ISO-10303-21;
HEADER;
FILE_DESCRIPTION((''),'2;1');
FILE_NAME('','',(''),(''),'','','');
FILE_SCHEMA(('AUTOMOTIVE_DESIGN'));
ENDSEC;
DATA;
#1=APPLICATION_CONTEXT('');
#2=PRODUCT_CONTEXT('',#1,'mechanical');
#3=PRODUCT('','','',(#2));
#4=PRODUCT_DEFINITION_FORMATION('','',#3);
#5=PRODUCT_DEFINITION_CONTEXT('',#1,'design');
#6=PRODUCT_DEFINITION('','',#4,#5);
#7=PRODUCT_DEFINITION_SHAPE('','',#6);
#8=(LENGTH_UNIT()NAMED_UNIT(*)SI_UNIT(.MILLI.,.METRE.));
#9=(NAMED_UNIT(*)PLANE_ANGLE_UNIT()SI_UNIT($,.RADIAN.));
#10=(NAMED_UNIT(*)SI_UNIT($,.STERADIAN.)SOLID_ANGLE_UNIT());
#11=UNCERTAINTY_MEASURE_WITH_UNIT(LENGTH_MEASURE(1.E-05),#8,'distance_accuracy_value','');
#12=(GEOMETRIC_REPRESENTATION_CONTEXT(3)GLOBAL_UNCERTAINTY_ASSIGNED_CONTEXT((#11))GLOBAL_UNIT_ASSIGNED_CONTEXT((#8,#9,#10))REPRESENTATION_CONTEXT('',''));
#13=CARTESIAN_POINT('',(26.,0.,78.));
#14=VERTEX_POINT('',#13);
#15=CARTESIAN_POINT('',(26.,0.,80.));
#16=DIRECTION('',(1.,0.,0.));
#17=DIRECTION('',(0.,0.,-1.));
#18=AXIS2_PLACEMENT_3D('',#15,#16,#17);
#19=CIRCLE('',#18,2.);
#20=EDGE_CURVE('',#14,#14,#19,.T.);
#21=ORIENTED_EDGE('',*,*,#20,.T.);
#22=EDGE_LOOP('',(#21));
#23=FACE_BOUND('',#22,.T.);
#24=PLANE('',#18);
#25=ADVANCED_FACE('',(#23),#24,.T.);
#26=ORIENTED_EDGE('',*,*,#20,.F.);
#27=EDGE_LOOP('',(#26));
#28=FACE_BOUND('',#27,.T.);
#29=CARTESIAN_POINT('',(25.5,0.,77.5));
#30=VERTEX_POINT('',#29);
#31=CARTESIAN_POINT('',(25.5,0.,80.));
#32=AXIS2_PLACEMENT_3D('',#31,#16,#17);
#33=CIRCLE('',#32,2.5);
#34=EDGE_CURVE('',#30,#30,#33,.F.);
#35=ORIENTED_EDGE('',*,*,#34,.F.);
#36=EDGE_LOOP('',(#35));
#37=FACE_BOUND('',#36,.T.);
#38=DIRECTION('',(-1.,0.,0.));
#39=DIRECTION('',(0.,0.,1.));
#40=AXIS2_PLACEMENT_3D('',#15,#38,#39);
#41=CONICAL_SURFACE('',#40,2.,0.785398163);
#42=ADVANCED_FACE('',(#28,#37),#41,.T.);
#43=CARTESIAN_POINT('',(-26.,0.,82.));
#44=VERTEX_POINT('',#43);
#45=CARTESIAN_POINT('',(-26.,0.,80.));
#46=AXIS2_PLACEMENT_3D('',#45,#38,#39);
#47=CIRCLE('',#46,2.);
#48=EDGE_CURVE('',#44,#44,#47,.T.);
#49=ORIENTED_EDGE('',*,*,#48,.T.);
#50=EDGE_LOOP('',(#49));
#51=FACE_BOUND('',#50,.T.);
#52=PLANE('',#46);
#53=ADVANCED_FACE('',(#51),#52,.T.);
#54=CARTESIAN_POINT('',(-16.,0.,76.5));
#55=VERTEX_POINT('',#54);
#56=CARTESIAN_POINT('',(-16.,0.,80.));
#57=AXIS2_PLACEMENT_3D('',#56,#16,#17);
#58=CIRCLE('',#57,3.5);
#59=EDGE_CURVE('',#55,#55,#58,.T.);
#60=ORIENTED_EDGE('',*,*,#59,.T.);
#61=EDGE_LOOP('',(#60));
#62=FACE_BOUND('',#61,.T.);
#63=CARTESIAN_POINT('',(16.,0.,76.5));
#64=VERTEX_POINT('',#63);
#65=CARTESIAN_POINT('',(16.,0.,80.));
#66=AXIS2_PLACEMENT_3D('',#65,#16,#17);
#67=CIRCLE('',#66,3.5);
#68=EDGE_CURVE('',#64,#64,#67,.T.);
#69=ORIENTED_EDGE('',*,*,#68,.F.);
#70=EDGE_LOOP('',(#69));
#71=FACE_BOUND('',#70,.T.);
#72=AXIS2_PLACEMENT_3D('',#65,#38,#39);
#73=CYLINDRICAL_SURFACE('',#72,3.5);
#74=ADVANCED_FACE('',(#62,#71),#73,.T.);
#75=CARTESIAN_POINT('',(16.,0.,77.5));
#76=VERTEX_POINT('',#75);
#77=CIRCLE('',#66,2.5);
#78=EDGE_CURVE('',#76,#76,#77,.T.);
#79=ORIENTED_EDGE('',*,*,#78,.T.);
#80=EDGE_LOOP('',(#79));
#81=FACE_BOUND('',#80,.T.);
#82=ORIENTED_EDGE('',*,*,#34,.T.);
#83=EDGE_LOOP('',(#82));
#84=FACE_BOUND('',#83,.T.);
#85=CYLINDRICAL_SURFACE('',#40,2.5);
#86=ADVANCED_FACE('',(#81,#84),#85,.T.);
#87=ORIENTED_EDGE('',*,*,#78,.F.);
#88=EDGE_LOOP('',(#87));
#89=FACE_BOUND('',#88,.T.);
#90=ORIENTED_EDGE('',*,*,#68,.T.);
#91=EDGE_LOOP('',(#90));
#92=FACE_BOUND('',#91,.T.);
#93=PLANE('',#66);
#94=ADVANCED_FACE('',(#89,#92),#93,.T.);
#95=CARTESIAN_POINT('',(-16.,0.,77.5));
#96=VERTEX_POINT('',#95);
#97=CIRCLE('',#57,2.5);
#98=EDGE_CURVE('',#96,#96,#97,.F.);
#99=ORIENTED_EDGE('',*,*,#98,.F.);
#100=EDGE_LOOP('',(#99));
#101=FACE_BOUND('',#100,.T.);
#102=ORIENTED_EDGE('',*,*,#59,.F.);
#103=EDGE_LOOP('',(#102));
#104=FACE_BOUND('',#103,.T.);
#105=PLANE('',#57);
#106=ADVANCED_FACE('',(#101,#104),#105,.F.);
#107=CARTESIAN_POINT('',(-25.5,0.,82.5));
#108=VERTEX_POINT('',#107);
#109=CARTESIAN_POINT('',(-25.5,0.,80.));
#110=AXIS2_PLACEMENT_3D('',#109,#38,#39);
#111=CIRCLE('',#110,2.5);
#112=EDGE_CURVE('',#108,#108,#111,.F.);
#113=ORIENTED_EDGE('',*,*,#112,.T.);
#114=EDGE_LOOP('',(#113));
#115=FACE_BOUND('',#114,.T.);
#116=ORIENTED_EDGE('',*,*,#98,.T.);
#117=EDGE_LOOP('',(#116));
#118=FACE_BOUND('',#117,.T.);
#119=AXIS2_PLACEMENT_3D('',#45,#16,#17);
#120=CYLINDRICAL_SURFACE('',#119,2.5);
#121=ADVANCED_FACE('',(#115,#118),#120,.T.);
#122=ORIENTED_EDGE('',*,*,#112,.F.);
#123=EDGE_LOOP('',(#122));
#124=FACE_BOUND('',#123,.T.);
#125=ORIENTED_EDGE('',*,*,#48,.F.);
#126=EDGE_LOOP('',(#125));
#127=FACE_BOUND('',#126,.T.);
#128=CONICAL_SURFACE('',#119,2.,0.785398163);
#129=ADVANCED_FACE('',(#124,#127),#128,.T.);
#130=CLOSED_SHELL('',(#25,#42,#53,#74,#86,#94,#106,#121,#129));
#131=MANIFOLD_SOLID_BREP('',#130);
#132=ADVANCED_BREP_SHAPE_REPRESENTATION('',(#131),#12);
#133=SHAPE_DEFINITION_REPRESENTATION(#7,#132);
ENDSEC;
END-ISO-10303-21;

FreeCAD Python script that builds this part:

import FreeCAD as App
import Part
import Sketcher
from FreeCAD import Vector


def edges_at(feature, points):
    """Names of the edges that pass closest to the given points."""
    edges = feature.Shape.Edges
    near = lambda p: min(range(len(edges)), key=lambda i: edges[i].distToShape(Part.Vertex(*p))[0])
    return sorted({f"Edge{near(p) + 1}" for p in points})

doc = App.newDocument("Part")
body = doc.addObject("PartDesign::Body", "Body")

# Sketch on YZ plane
sketch1 = body.newObject("Sketcher::SketchObject", "Sketch")
sketch1.AttachmentSupport = (doc.getObject("YZ_Plane"), [""])
sketch1.MapMode = "FlatFace"
sketch1.addGeometry(Part.Circle(Vector(0, 80, 0), Vector(0, 0, 1), 3.5), False)
sketch1.addConstraint([
    Sketcher.Constraint("PointOnObject", 0, 3, -2),
    Sketcher.Constraint("Diameter", 0, 7.0),
    Sketcher.Constraint("DistanceY", -1, 1, 0, 3, 80.0),
])
pad1 = body.newObject("PartDesign::Pad", "Pad")
pad1.Profile = sketch1
pad1.Length = 32
pad1.Midplane = True

# Sketch on YZ plane
sketch2 = body.newObject("Sketcher::SketchObject", "Sketch001")
sketch2.AttachmentSupport = (doc.getObject("YZ_Plane"), [""])
sketch2.MapMode = "FlatFace"
sketch2.AttachmentOffset = App.Placement(Vector(0, 0, 16), App.Rotation())
sketch2.addGeometry(Part.Circle(Vector(0, 80, 0), Vector(0, 0, 1), 2.5), False)
sketch2.addConstraint([
    Sketcher.Constraint("PointOnObject", 0, 3, -2),
    Sketcher.Constraint("Diameter", 0, 5.0),
    Sketcher.Constraint("DistanceY", -1, 1, 0, 3, 80.0),
])
pad2 = body.newObject("PartDesign::Pad", "Pad001")
pad2.Profile = sketch2
pad2.Length = 10

# Sketch on YZ plane
sketch3 = body.newObject("Sketcher::SketchObject", "Sketch002")
sketch3.AttachmentSupport = (doc.getObject("YZ_Plane"), [""])
sketch3.MapMode = "FlatFace"
sketch3.AttachmentOffset = App.Placement(Vector(0, 0, -26), App.Rotation())
sketch3.addGeometry(Part.Circle(Vector(0, 80, 0), Vector(0, 0, 1), 2.5), False)
sketch3.addConstraint([
    Sketcher.Constraint("PointOnObject", 0, 3, -2),
    Sketcher.Constraint("Diameter", 0, 5.0),
    Sketcher.Constraint("DistanceY", -1, 1, 0, 3, 80.0),
])
pad3 = body.newObject("PartDesign::Pad", "Pad002")
pad3.Profile = sketch3
pad3.Length = 10
doc.recompute()

chamfer = body.newObject("PartDesign::Chamfer", "Chamfer")
chamfer.Base = (pad3, edges_at(pad3, [(-26, 0, 82.5), (26, 0, 82.5)]))
chamfer.Size = 0.5

doc.recompute()
